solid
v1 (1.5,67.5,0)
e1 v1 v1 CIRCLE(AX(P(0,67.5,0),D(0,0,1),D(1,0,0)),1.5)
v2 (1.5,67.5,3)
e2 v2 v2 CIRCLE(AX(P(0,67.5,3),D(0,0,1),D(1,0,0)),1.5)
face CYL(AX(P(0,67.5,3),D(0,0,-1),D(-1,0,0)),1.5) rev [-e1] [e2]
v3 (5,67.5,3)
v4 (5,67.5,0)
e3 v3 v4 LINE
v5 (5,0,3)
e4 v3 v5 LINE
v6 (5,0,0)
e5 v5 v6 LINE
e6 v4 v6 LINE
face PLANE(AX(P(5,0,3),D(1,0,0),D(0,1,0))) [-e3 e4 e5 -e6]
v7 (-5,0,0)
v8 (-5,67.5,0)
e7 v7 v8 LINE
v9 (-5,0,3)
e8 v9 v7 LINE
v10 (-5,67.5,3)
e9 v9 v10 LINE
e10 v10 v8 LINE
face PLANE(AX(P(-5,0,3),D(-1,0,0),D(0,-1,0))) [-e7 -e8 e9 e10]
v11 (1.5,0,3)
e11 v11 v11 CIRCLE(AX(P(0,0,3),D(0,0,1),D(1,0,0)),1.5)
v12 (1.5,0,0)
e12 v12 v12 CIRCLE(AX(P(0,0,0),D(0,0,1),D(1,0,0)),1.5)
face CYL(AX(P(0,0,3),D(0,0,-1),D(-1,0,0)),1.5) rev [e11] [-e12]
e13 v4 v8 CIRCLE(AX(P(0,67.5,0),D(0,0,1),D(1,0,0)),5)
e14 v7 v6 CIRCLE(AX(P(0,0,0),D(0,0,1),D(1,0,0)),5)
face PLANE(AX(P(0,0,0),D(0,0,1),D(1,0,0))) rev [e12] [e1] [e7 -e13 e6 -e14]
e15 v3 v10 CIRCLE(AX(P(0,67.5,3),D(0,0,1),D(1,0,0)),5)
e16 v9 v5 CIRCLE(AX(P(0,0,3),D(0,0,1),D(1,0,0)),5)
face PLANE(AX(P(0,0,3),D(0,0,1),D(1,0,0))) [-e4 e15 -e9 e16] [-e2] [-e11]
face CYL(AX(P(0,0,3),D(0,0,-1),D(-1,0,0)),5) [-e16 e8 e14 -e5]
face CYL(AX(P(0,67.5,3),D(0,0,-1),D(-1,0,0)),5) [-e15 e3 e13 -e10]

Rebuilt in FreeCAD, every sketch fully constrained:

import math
import FreeCAD as App
import Part
import Sketcher
from FreeCAD import Vector

doc = App.newDocument("Part")
body = doc.addObject("PartDesign::Body", "Body")

# Sketch on XY plane
sketch1 = doc.addObject("Sketcher::SketchObject", "Sketch")
body.addObject(sketch1)
sketch1.AttachmentSupport = (doc.XY_Plane, [""])
sketch1.MapMode = "FlatFace"
sketch1.addGeometry([
    Part.LineSegment(Vector(-5, 67.5, 0), Vector(-5, 0, 0)),  # 0
    Part.ArcOfCircle(Part.Circle(Vector(0, 0, 0), Vector(0, 0, 1), 5), math.radians(180), math.radians(360)),  # 1
    Part.LineSegment(Vector(5, 0, 0), Vector(5, 67.5, 0)),  # 2
    Part.ArcOfCircle(Part.Circle(Vector(0, 67.5, 0), Vector(0, 0, 1), 5), math.radians(0), math.radians(180)),  # 3
    Part.Circle(Vector(0, 0, 0), Vector(0, 0, 1), 1.5),  # 4
    Part.Circle(Vector(0, 67.5, 0), Vector(0, 0, 1), 1.5),  # 5
], False)
sketch1.addConstraint([
    Sketcher.Constraint("Tangent", 0, 2, 1, 1),
    Sketcher.Constraint("Tangent", 1, 2, 2, 1),
    Sketcher.Constraint("Tangent", 2, 2, 3, 1),
    Sketcher.Constraint("Tangent", 3, 2, 0, 1),
    Sketcher.Constraint("Vertical", 0),
    Sketcher.Constraint("Vertical", 2),
    Sketcher.Constraint("Coincident", 1, 3, -1, 1),
    Sketcher.Constraint("Coincident", 4, 3, -1, 1),
    Sketcher.Constraint("Coincident", 5, 3, 3, 3),
    Sketcher.Constraint("Equal", 4, 5),
    Sketcher.Constraint("Diameter", 4, 3.0),
    Sketcher.Constraint("Radius", 1, 5.0),
    Sketcher.Constraint("DistanceY", 0, 2, 0, 1, 67.5),
])
pad1 = doc.addObject("PartDesign::Pad", "Pad")
body.addObject(pad1)
pad1.Profile = sketch1
pad1.Length = 3

doc.recompute()
